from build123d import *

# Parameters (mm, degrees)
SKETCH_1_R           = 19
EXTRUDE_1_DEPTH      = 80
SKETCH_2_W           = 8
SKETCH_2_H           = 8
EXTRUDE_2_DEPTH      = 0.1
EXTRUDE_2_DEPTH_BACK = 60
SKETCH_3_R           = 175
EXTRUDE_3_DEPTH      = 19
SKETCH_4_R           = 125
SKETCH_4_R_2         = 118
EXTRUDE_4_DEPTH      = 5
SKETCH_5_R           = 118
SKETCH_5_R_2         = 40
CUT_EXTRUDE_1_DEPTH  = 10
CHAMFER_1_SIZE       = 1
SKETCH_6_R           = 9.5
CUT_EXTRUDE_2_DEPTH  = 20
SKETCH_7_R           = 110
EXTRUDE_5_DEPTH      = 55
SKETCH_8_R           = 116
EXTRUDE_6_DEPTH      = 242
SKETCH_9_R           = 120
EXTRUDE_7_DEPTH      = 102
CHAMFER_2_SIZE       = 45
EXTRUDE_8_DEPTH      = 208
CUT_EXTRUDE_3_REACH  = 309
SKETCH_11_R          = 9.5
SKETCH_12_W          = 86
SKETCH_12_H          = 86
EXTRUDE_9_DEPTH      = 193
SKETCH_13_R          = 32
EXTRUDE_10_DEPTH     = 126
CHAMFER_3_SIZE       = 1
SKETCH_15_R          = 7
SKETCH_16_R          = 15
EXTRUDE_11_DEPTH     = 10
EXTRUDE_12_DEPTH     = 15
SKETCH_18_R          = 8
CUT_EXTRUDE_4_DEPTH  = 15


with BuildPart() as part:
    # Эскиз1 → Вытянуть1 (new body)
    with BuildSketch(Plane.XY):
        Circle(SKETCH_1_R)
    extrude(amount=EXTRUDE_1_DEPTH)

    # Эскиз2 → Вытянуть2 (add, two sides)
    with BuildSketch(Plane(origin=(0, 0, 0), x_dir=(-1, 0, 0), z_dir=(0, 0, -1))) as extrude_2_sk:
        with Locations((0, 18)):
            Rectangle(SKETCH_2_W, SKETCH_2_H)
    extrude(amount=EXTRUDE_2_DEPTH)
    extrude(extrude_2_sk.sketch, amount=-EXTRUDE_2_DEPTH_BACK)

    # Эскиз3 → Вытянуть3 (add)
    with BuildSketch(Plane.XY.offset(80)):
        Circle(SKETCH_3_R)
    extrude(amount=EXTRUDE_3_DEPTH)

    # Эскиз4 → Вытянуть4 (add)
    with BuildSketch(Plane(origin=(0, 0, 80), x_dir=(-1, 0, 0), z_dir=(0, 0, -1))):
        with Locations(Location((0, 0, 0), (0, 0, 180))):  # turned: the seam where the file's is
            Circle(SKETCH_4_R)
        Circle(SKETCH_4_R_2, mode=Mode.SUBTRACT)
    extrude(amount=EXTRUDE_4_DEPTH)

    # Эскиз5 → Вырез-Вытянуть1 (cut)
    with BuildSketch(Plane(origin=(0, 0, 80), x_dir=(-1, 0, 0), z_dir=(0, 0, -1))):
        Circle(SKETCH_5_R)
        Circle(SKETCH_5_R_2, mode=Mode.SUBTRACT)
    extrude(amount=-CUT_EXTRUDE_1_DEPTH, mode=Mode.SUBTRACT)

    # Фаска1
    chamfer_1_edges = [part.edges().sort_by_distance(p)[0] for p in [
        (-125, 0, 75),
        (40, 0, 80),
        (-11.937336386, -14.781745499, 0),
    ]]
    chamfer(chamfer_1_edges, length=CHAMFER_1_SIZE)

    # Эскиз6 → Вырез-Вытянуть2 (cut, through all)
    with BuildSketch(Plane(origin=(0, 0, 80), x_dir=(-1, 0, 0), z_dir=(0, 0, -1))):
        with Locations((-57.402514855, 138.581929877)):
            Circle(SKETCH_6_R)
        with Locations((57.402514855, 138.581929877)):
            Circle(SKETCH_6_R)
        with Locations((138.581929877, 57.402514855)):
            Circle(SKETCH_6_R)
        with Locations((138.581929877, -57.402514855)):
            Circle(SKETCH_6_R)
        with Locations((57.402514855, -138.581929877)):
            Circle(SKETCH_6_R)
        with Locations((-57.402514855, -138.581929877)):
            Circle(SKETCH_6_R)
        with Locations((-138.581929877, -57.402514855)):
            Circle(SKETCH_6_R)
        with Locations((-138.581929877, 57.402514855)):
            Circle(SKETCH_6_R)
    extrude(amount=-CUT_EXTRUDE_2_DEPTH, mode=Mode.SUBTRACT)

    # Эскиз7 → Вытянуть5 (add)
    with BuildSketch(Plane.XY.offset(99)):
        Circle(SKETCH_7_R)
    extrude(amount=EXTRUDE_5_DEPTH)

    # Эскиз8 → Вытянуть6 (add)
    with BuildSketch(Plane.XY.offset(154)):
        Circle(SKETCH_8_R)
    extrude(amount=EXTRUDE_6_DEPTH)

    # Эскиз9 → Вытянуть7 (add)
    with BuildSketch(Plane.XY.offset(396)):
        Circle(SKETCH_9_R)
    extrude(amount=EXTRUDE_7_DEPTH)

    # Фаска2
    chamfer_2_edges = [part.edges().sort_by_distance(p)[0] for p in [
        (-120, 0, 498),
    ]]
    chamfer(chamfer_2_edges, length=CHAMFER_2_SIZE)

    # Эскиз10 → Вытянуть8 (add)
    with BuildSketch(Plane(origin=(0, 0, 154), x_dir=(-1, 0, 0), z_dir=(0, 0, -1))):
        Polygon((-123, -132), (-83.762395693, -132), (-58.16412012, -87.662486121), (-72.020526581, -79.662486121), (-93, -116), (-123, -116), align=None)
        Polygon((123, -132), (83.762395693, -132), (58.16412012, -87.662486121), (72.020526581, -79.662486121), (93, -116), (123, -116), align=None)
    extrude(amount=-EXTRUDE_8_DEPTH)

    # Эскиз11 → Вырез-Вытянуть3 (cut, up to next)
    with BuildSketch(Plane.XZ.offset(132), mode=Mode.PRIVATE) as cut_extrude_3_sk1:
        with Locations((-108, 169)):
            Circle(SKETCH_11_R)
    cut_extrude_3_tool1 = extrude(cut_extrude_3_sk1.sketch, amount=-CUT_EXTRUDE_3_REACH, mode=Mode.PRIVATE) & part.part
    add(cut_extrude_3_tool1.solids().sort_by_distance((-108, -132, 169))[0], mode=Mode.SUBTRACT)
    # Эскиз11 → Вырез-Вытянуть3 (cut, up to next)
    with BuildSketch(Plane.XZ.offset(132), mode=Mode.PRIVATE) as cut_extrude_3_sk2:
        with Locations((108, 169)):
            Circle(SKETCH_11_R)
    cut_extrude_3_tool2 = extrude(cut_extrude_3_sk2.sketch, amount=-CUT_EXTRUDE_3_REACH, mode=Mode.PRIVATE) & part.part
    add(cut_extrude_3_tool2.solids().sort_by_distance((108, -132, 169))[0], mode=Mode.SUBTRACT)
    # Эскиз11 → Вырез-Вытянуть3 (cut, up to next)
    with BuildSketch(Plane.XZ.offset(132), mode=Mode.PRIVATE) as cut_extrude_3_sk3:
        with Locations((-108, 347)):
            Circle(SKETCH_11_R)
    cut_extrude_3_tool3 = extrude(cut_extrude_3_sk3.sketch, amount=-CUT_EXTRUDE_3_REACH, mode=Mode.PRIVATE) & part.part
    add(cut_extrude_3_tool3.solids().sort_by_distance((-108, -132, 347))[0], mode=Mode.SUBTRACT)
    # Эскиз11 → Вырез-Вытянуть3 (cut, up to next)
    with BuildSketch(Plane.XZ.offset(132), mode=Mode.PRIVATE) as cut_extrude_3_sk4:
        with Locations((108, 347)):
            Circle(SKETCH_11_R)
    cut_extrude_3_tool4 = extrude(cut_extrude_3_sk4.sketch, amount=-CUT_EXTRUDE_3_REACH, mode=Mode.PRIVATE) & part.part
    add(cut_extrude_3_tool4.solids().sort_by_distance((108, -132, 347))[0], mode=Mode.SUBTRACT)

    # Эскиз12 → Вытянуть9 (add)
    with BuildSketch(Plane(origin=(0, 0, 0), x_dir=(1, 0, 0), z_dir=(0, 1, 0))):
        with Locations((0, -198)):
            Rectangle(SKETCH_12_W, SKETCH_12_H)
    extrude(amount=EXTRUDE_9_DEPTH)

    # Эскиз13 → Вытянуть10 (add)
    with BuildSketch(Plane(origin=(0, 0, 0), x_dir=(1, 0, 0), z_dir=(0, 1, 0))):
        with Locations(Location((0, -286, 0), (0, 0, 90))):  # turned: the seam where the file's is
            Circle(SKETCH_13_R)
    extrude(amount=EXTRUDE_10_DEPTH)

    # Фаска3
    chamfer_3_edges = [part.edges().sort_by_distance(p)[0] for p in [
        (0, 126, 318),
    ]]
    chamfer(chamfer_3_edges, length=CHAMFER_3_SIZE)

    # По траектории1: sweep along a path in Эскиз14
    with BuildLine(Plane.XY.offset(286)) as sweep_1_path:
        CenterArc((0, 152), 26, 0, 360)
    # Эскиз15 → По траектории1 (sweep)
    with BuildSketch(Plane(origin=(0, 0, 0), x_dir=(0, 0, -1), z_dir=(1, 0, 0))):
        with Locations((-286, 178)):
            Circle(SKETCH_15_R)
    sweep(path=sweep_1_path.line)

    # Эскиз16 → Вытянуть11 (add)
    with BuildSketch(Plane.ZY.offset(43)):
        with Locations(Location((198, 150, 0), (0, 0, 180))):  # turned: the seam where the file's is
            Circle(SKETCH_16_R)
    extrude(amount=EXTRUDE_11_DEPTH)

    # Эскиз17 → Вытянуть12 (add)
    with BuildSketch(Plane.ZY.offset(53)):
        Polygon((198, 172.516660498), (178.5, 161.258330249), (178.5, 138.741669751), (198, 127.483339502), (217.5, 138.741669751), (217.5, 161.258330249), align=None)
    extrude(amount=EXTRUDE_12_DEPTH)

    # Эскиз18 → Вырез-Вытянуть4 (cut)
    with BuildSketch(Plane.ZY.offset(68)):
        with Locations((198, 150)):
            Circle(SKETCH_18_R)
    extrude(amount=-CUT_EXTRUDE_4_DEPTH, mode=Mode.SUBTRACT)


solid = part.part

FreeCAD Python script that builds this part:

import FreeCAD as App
import Part
import Sketcher
Q = App.Units.Quantity


def edges_at(feature, points):
    """Names of the edges that pass closest to the given points."""
    edges = feature.Shape.Edges
    near = lambda p: min(range(len(edges)), key=lambda i: edges[i].distToShape(Part.Vertex(*p))[0])
    return sorted({f"Edge{near(p) + 1}" for p in points})

doc = App.newDocument("Part")
body = doc.addObject("PartDesign::Body", "Body")

# Sketch on XY plane
sketch1 = doc.addObject("Sketcher::SketchObject", "Sketch")
body.addObject(sketch1)
sketch1.AttachmentSupport = (doc.XY_Plane, [""])
sketch1.MapMode = "FlatFace"
sketch1.addGeometry(Part.Circle(App.Vector(0, 0, 0), App.Vector(0, 0, 1), 19), False)
sketch1.addConstraint([
    Sketcher.Constraint("Coincident", 0, 3, -1, 1),
    Sketcher.Constraint("Diameter", 0, 38.0),
])
pad1 = doc.addObject("PartDesign::Pad", "Pad")
body.addObject(pad1)
pad1.Profile = sketch1
pad1.Length = 80

# Sketch on XY plane
sketch2 = doc.addObject("Sketcher::SketchObject", "Sketch001")
body.addObject(sketch2)
sketch2.AttachmentSupport = (doc.XY_Plane, [""])
sketch2.MapMode = "FlatFace"
sketch2.addGeometry([
    Part.LineSegment(App.Vector(4, 22, 0), App.Vector(4, 14, 0)),
    Part.LineSegment(App.Vector(4, 14, 0), App.Vector(-4, 14, 0)),
    Part.LineSegment(App.Vector(-4, 14, 0), App.Vector(-4, 22, 0)),
    Part.LineSegment(App.Vector(-4, 22, 0), App.Vector(4, 22, 0)),
], False)
sketch2.addConstraint([
    Sketcher.Constraint("Coincident", 0, 2, 1, 1),
    Sketcher.Constraint("Coincident", 1, 2, 2, 1),
    Sketcher.Constraint("Coincident", 2, 2, 3, 1),
    Sketcher.Constraint("Coincident", 3, 2, 0, 1),
    Sketcher.Constraint("Vertical", 0),
    Sketcher.Constraint("Horizontal", 1),
    Sketcher.Constraint("Vertical", 2),
    Sketcher.Constraint("Horizontal", 3),
    Sketcher.Constraint("Equal", 3, 0),
    Sketcher.Constraint("DistanceX", 1, 2, 1, 1, 8.0),
    Sketcher.Constraint("DistanceX", -1, 1, 0, 2, 4.0),
    Sketcher.Constraint("DistanceY", -1, 1, 0, 2, 14.0),
])
pad2 = doc.addObject("PartDesign::Pad", "Pad001")
body.addObject(pad2)
pad2.Profile = sketch2
pad2.Type = "TwoLengths"
pad2.Length = 0.1
pad2.Length2 = 60
pad2.Reversed = True

# Sketch on XY plane
sketch3 = doc.addObject("Sketcher::SketchObject", "Sketch002")
body.addObject(sketch3)
sketch3.AttachmentSupport = (doc.XY_Plane, [""])
sketch3.MapMode = "FlatFace"
sketch3.AttachmentOffset = App.Placement(App.Vector(0, 0, 80), App.Rotation())
sketch3.addGeometry(Part.Circle(App.Vector(0, 0, 0), App.Vector(0, 0, 1), 175), False)
sketch3.addConstraint([
    Sketcher.Constraint("Coincident", 0, 3, -1, 1),
    Sketcher.Constraint("Diameter", 0, 350.0),
])
pad3 = doc.addObject("PartDesign::Pad", "Pad002")
body.addObject(pad3)
pad3.Profile = sketch3
pad3.Length = 19

# Sketch on XY plane
sketch4 = doc.addObject("Sketcher::SketchObject", "Sketch003")
body.addObject(sketch4)
sketch4.AttachmentSupport = (doc.XY_Plane, [""])
sketch4.MapMode = "FlatFace"
sketch4.AttachmentOffset = App.Placement(App.Vector(0, 0, 80), App.Rotation())
sketch4.addGeometry([
    Part.Circle(App.Vector(0, 0, 0), App.Vector(0, 0, 1), 125),
    Part.Circle(App.Vector(0, 0, 0), App.Vector(0, 0, 1), 118),
], False)
sketch4.addConstraint([
    Sketcher.Constraint("Coincident", 0, 3, -1, 1),
    Sketcher.Constraint("Coincident", 1, 3, -1, 1),
    Sketcher.Constraint("Diameter", 0, 250.0),
    Sketcher.Constraint("Diameter", 1, 236.0),
])
pad4 = doc.addObject("PartDesign::Pad", "Pad003")
body.addObject(pad4)
pad4.Profile = sketch4
pad4.Length = 5
pad4.Reversed = True

# Sketch on XY plane
sketch5 = doc.addObject("Sketcher::SketchObject", "Sketch004")
body.addObject(sketch5)
sketch5.AttachmentSupport = (doc.XY_Plane, [""])
sketch5.MapMode = "FlatFace"
sketch5.AttachmentOffset = App.Placement(App.Vector(0, 0, 80), App.Rotation())
sketch5.addGeometry([
    Part.Circle(App.Vector(0, 0, 0), App.Vector(0, 0, 1), 118),
    Part.Circle(App.Vector(0, 0, 0), App.Vector(0, 0, 1), 40),
], False)
sketch5.addConstraint([
    Sketcher.Constraint("Coincident", 0, 3, -1, 1),
    Sketcher.Constraint("Coincident", 1, 3, -1, 1),
    Sketcher.Constraint("Diameter", 0, 236.0),
    Sketcher.Constraint("Diameter", 1, 80.0),
])
pocket1 = doc.addObject("PartDesign::Pocket", "Pocket")
body.addObject(pocket1)
pocket1.Profile = sketch5
pocket1.Length = 10
pocket1.Reversed = True
doc.recompute()

chamfer = doc.addObject("PartDesign::Chamfer", "Chamfer")
body.addObject(chamfer)
chamfer.Base = (pocket1, edges_at(pocket1, [(-125, 0, 75), (40, 0, 80), (-11.937, -14.782, 0)]))
chamfer.Size = 1

# Sketch on XY plane
sketch6 = doc.addObject("Sketcher::SketchObject", "Sketch005")
body.addObject(sketch6)
sketch6.AttachmentSupport = (doc.XY_Plane, [""])
sketch6.MapMode = "FlatFace"
sketch6.AttachmentOffset = App.Placement(App.Vector(0, 0, 80), App.Rotation())
sketch6.addGeometry([
    Part.Circle(App.Vector(57, 139, 0), App.Vector(0, 0, 1), 10),  # 0
    Part.Circle(App.Vector(-57, 139, 0), App.Vector(0, 0, 1), 10),  # 1
    Part.Circle(App.Vector(-139, 57, 0), App.Vector(0, 0, 1), 10),  # 2
    Part.Circle(App.Vector(-139, -57, 0), App.Vector(0, 0, 1), 10),  # 3
    Part.Circle(App.Vector(-57, -139, 0), App.Vector(0, 0, 1), 10),  # 4
    Part.Circle(App.Vector(57, -139, 0), App.Vector(0, 0, 1), 10),  # 5
    Part.Circle(App.Vector(139, -57, 0), App.Vector(0, 0, 1), 10),  # 6
    Part.Circle(App.Vector(139, 57, 0), App.Vector(0, 0, 1), 10),  # 7
], False)
sketch6.addConstraint([
    Sketcher.Constraint("Equal", 0, 1),
    Sketcher.Constraint("Equal", 1, 2),
    Sketcher.Constraint("Equal", 2, 3),
    Sketcher.Constraint("Equal", 3, 4),
    Sketcher.Constraint("Equal", 4, 5),
    Sketcher.Constraint("Equal", 5, 6),
    Sketcher.Constraint("Equal", 6, 7),
    Sketcher.Constraint("Symmetric", 0, 3, 4, 3, -1, 1),
    Sketcher.Constraint("Symmetric", 1, 3, 5, 3, -1, 1),
    Sketcher.Constraint("Symmetric", 2, 3, 6, 3, -1, 1),
    Sketcher.Constraint("Symmetric", 3, 3, 7, 3, -1, 1),
    Sketcher.Constraint("Symmetric", 0, 3, 1, 3, -2),
    Sketcher.Constraint("Symmetric", 3, 3, 6, 3, -2),
    Sketcher.Constraint("Diameter", 0, 19.0),
    Sketcher.Constraint("DistanceY", -1, 1, 0, 3, 138.58193),
    Sketcher.Constraint("DistanceX", 2, 3, -1, 1, 138.58193),
    Sketcher.Constraint("DistanceX", 1, 3, 0, 3, 114.80503),
    Sketcher.Constraint("DistanceY", 3, 3, 2, 3, 114.80503),
])
pocket2 = doc.addObject("PartDesign::Pocket", "Pocket001")
body.addObject(pocket2)
pocket2.Profile = sketch6
pocket2.Type = "ThroughAll"
pocket2.Reversed = True

# Sketch on XY plane
sketch7 = doc.addObject("Sketcher::SketchObject", "Sketch006")
body.addObject(sketch7)
sketch7.AttachmentSupport = (doc.XY_Plane, [""])
sketch7.MapMode = "FlatFace"
sketch7.AttachmentOffset = App.Placement(App.Vector(0, 0, 99), App.Rotation())
sketch7.addGeometry(Part.Circle(App.Vector(0, 0, 0), App.Vector(0, 0, 1), 110), False)
sketch7.addConstraint([
    Sketcher.Constraint("Coincident", 0, 3, -1, 1),
    Sketcher.Constraint("Diameter", 0, 220.0),
])
pad5 = doc.addObject("PartDesign::Pad", "Pad004")
body.addObject(pad5)
pad5.Profile = sketch7
pad5.Length = 55

# Sketch on XY plane
sketch8 = doc.addObject("Sketcher::SketchObject", "Sketch007")
body.addObject(sketch8)
sketch8.AttachmentSupport = (doc.XY_Plane, [""])
sketch8.MapMode = "FlatFace"
sketch8.AttachmentOffset = App.Placement(App.Vector(0, 0, 154), App.Rotation())
sketch8.addGeometry(Part.Circle(App.Vector(0, 0, 0), App.Vector(0, 0, 1), 116), False)
sketch8.addConstraint([
    Sketcher.Constraint("Coincident", 0, 3, -1, 1),
    Sketcher.Constraint("Diameter", 0, 232.0),
])
pad6 = doc.addObject("PartDesign::Pad", "Pad005")
body.addObject(pad6)
pad6.Profile = sketch8
pad6.Length = 242

# Sketch on XY plane
sketch9 = doc.addObject("Sketcher::SketchObject", "Sketch008")
body.addObject(sketch9)
sketch9.AttachmentSupport = (doc.XY_Plane, [""])
sketch9.MapMode = "FlatFace"
sketch9.AttachmentOffset = App.Placement(App.Vector(0, 0, 396), App.Rotation())
sketch9.addGeometry(Part.Circle(App.Vector(0, 0, 0), App.Vector(0, 0, 1), 120), False)
sketch9.addConstraint([
    Sketcher.Constraint("Coincident", 0, 3, -1, 1),
    Sketcher.Constraint("Diameter", 0, 240.0),
])
pad7 = doc.addObject("PartDesign::Pad", "Pad006")
body.addObject(pad7)
pad7.Profile = sketch9
pad7.Length = 102
doc.recompute()

chamfer2 = doc.addObject("PartDesign::Chamfer", "Chamfer001")
body.addObject(chamfer2)
chamfer2.Base = (pad7, edges_at(pad7, [(-120, 0, 498)]))
chamfer2.Size = 45

# Sketch on XY plane
sketch10 = doc.addObject("Sketcher::SketchObject", "Sketch009")
body.addObject(sketch10)
sketch10.AttachmentSupport = (doc.XY_Plane, [""])
sketch10.MapMode = "FlatFace"
sketch10.AttachmentOffset = App.Placement(App.Vector(0, 0, 154), App.Rotation())
sketch10.addGeometry([
    Part.LineSegment(App.Vector(123, -132, 0), App.Vector(84, -132, 0)),  # 0
    Part.LineSegment(App.Vector(84, -132, 0), App.Vector(58, -88, 0)),  # 1
    Part.LineSegment(App.Vector(58, -88, 0), App.Vector(72, -80, 0)),  # 2
    Part.LineSegment(App.Vector(72, -80, 0), App.Vector(93, -116, 0)),  # 3
    Part.LineSegment(App.Vector(93, -116, 0), App.Vector(123, -116, 0)),  # 4
    Part.LineSegment(App.Vector(123, -116, 0), App.Vector(123, -132, 0)),  # 5
    Part.LineSegment(App.Vector(-84, -132, 0), App.Vector(-123, -132, 0)),  # 6
    Part.LineSegment(App.Vector(-123, -132, 0), App.Vector(-123, -116, 0)),  # 7
    Part.LineSegment(App.Vector(-123, -116, 0), App.Vector(-93, -116, 0)),  # 8
    Part.LineSegment(App.Vector(-93, -116, 0), App.Vector(-72, -80, 0)),  # 9
    Part.LineSegment(App.Vector(-72, -80, 0), App.Vector(-58, -88, 0)),  # 10
    Part.LineSegment(App.Vector(-58, -88, 0), App.Vector(-84, -132, 0)),  # 11
], False)
sketch10.addConstraint([
    Sketcher.Constraint("Coincident", 0, 2, 1, 1),
    Sketcher.Constraint("Coincident", 1, 2, 2, 1),
    Sketcher.Constraint("Coincident", 2, 2, 3, 1),
    Sketcher.Constraint("Coincident", 3, 2, 4, 1),
    Sketcher.Constraint("Coincident", 4, 2, 5, 1),
    Sketcher.Constraint("Coincident", 5, 2, 0, 1),
    Sketcher.Constraint("Coincident", 6, 2, 7, 1),
    Sketcher.Constraint("Coincident", 7, 2, 8, 1),
    Sketcher.Constraint("Coincident", 8, 2, 9, 1),
    Sketcher.Constraint("Coincident", 9, 2, 10, 1),
    Sketcher.Constraint("Coincident", 10, 2, 11, 1),
    Sketcher.Constraint("Coincident", 11, 2, 6, 1),
    Sketcher.Constraint("Horizontal", 0),
    Sketcher.Constraint("Horizontal", 4),
    Sketcher.Constraint("Vertical", 5),
    Sketcher.Constraint("Horizontal", 6),
    Sketcher.Constraint("Vertical", 7),
    Sketcher.Constraint("Horizontal", 8),
    Sketcher.Constraint("Symmetric", 5, 2, 6, 2, -2),
    Sketcher.Constraint("Symmetric", 3, 2, 8, 2, -2),
    Sketcher.Constraint("Symmetric", 2, 2, 9, 2, -2),
    Sketcher.Constraint("Symmetric", 1, 2, 10, 2, -2),
    Sketcher.Constraint("Perpendicular", 1, 2),
    Sketcher.Constraint("Perpendicular", 2, 3),
    Sketcher.Constraint("Perpendicular", 10, 11),
    Sketcher.Constraint("DistanceX", 4, 1, 4, 2, 30.0),
    Sketcher.Constraint("DistanceY", 5, 2, 5, 1, 16.0),
    Sketcher.Constraint("Angle", 1, Q("120 deg")),
    Sketcher.Constraint("Distance", 2, 16.0),
    Sketcher.Constraint("DistanceY", 0, 2, -1, 1, 132.0),
    Sketcher.Constraint("DistanceX", -1, 1, 3, 2, 93.0),
    Sketcher.Constraint("Distance", 1, 51.196551),
])
pad8 = doc.addObject("PartDesign::Pad", "Pad007")
body.addObject(pad8)
pad8.Profile = sketch10
pad8.Length = 208

# Sketch on XZ plane
sketch11 = doc.addObject("Sketcher::SketchObject", "Sketch010")
body.addObject(sketch11)
sketch11.AttachmentSupport = (doc.XZ_Plane, [""])
sketch11.MapMode = "FlatFace"
sketch11.AttachmentOffset = App.Placement(App.Vector(0, 0, 132), App.Rotation())
sketch11.addGeometry(Part.Circle(App.Vector(-108, 169, 0), App.Vector(0, 0, 1), 10), False)
sketch11.addConstraint([
    Sketcher.Constraint("Diameter", 0, 19.0),
    Sketcher.Constraint("DistanceX", 0, 3, -1, 1, 108.0),
    Sketcher.Constraint("DistanceY", -1, 1, 0, 3, 169.0),
])
pocket3 = doc.addObject("PartDesign::Pocket", "Pocket002")
body.addObject(pocket3)
pocket3.Profile = sketch11
pocket3.Type = "UpToFirst"

# Sketch on XZ plane
sketch12 = doc.addObject("Sketcher::SketchObject", "Sketch011")
body.addObject(sketch12)
sketch12.AttachmentSupport = (doc.XZ_Plane, [""])
sketch12.MapMode = "FlatFace"
sketch12.AttachmentOffset = App.Placement(App.Vector(0, 0, 132), App.Rotation())
sketch12.addGeometry(Part.Circle(App.Vector(108, 169, 0), App.Vector(0, 0, 1), 10), False)
sketch12.addConstraint([
    Sketcher.Constraint("Diameter", 0, 19.0),
    Sketcher.Constraint("DistanceX", -1, 1, 0, 3, 108.0),
    Sketcher.Constraint("DistanceY", -1, 1, 0, 3, 169.0),
])
pocket4 = doc.addObject("PartDesign::Pocket", "Pocket003")
body.addObject(pocket4)
pocket4.Profile = sketch12
pocket4.Type = "UpToFirst"

# Sketch on XZ plane
sketch13 = doc.addObject("Sketcher::SketchObject", "Sketch012")
body.addObject(sketch13)
sketch13.AttachmentSupport = (doc.XZ_Plane, [""])
sketch13.MapMode = "FlatFace"
sketch13.AttachmentOffset = App.Placement(App.Vector(0, 0, 132), App.Rotation())
sketch13.addGeometry(Part.Circle(App.Vector(-108, 347, 0), App.Vector(0, 0, 1), 10), False)
sketch13.addConstraint([
    Sketcher.Constraint("Diameter", 0, 19.0),
    Sketcher.Constraint("DistanceX", 0, 3, -1, 1, 108.0),
    Sketcher.Constraint("DistanceY", -1, 1, 0, 3, 347.0),
])
pocket5 = doc.addObject("PartDesign::Pocket", "Pocket004")
body.addObject(pocket5)
pocket5.Profile = sketch13
pocket5.Type = "UpToFirst"

# Sketch on XZ plane
sketch14 = doc.addObject("Sketcher::SketchObject", "Sketch013")
body.addObject(sketch14)
sketch14.AttachmentSupport = (doc.XZ_Plane, [""])
sketch14.MapMode = "FlatFace"
sketch14.AttachmentOffset = App.Placement(App.Vector(0, 0, 132), App.Rotation())
sketch14.addGeometry(Part.Circle(App.Vector(108, 347, 0), App.Vector(0, 0, 1), 10), False)
sketch14.addConstraint([
    Sketcher.Constraint("Diameter", 0, 19.0),
    Sketcher.Constraint("DistanceX", -1, 1, 0, 3, 108.0),
    Sketcher.Constraint("DistanceY", -1, 1, 0, 3, 347.0),
])
pocket6 = doc.addObject("PartDesign::Pocket", "Pocket005")
body.addObject(pocket6)
pocket6.Profile = sketch14
pocket6.Type = "UpToFirst"

# Sketch on XZ plane
sketch15 = doc.addObject("Sketcher::SketchObject", "Sketch014")
body.addObject(sketch15)
sketch15.AttachmentSupport = (doc.XZ_Plane, [""])
sketch15.MapMode = "FlatFace"
sketch15.addGeometry([
    Part.LineSegment(App.Vector(-43, 155, 0), App.Vector(-43, 241, 0)),
    Part.LineSegment(App.Vector(-43, 241, 0), App.Vector(43, 241, 0)),
    Part.LineSegment(App.Vector(43, 241, 0), App.Vector(43, 155, 0)),
    Part.LineSegment(App.Vector(43, 155, 0), App.Vector(-43, 155, 0)),
], False)
sketch15.addConstraint([
    Sketcher.Constraint("Coincident", 0, 2, 1, 1),
    Sketcher.Constraint("Coincident", 1, 2, 2, 1),
    Sketcher.Constraint("Coincident", 2, 2, 3, 1),
    Sketcher.Constraint("Coincident", 3, 2, 0, 1),
    Sketcher.Constraint("Vertical", 0),
    Sketcher.Constraint("Horizontal", 1),
    Sketcher.Constraint("Vertical", 2),
    Sketcher.Constraint("Horizontal", 3),
    Sketcher.Constraint("Equal", 3, 0),
    Sketcher.Constraint("DistanceX", 1, 1, 1, 2, 86.0),
    Sketcher.Constraint("DistanceX", 0, 2, -1, 1, 43.0),
    Sketcher.Constraint("DistanceY", -1, 1, 0, 2, 241.0),
])
pad9 = doc.addObject("PartDesign::Pad", "Pad008")
body.addObject(pad9)
pad9.Profile = sketch15
pad9.Length = 193
pad9.Reversed = True

# Sketch on XZ plane
sketch16 = doc.addObject("Sketcher::SketchObject", "Sketch015")
body.addObject(sketch16)
sketch16.AttachmentSupport = (doc.XZ_Plane, [""])
sketch16.MapMode = "FlatFace"
sketch16.addGeometry(Part.Circle(App.Vector(0, 286, 0), App.Vector(0, 0, 1), 32), False)
sketch16.addConstraint([
    Sketcher.Constraint("PointOnObject", 0, 3, -2),
    Sketcher.Constraint("Diameter", 0, 64.0),
    Sketcher.Constraint("DistanceY", -1, 1, 0, 3, 286.0),
])
pad10 = doc.addObject("PartDesign::Pad", "Pad009")
body.addObject(pad10)
pad10.Profile = sketch16
pad10.Length = 126
pad10.Reversed = True
doc.recompute()

chamfer3 = doc.addObject("PartDesign::Chamfer", "Chamfer002")
body.addObject(chamfer3)
chamfer3.Base = (pad10, edges_at(pad10, [(0, 126, 318)]))
chamfer3.Size = 1

# Sketch on YZ plane
sketch17 = doc.addObject("Sketcher::SketchObject", "Sketch016")
body.addObject(sketch17)
sketch17.AttachmentSupport = (doc.YZ_Plane, [""])
sketch17.MapMode = "FlatFace"
sketch17.addGeometry(Part.Circle(App.Vector(178, 286, 0), App.Vector(0, 0, 1), 7), False)
sketch17.addConstraint([
    Sketcher.Constraint("Diameter", 0, 14.0),
    Sketcher.Constraint("DistanceX", -1, 1, 0, 3, 178.0),
    Sketcher.Constraint("DistanceY", -1, 1, 0, 3, 286.0),
])

# Sketch on XY plane
sketch18 = doc.addObject("Sketcher::SketchObject", "Sketch017")
body.addObject(sketch18)
sketch18.AttachmentSupport = (doc.XY_Plane, [""])
sketch18.MapMode = "FlatFace"
sketch18.AttachmentOffset = App.Placement(App.Vector(0, 0, 286), App.Rotation())
sketch18.addGeometry(Part.Circle(App.Vector(0, 152, 0), App.Vector(0, 0, 1), 26), False)
sketch18.addConstraint([
    Sketcher.Constraint("PointOnObject", 0, 3, -2),
    Sketcher.Constraint("Diameter", 0, 52.0),
    Sketcher.Constraint("DistanceY", -1, 1, 0, 3, 152.0),
])
doc.recompute()

additivepipe = doc.addObject("PartDesign::AdditivePipe", "AdditivePipe")
body.addObject(additivepipe)
additivepipe.Profile = sketch17
additivepipe.Spine = (sketch18, ["Edge1"])

# Sketch on YZ plane
sketch19 = doc.addObject("Sketcher::SketchObject", "Sketch018")
body.addObject(sketch19)
sketch19.AttachmentSupport = (doc.YZ_Plane, [""])
sketch19.MapMode = "FlatFace"
sketch19.AttachmentOffset = App.Placement(App.Vector(0, 0, -43), App.Rotation())
sketch19.addGeometry(Part.Circle(App.Vector(150, 198, 0), App.Vector(0, 0, 1), 15), False)
sketch19.addConstraint([
    Sketcher.Constraint("Diameter", 0, 30.0),
    Sketcher.Constraint("DistanceX", -1, 1, 0, 3, 150.0),
    Sketcher.Constraint("DistanceY", -1, 1, 0, 3, 198.0),
])
pad11 = doc.addObject("PartDesign::Pad", "Pad010")
body.addObject(pad11)
pad11.Profile = sketch19
pad11.Length = 10
pad11.Reversed = True

# Sketch on YZ plane
sketch20 = doc.addObject("Sketcher::SketchObject", "Sketch019")
body.addObject(sketch20)
sketch20.AttachmentSupport = (doc.YZ_Plane, [""])
sketch20.MapMode = "FlatFace"
sketch20.AttachmentOffset = App.Placement(App.Vector(0, 0, -53), App.Rotation())
sketch20.addGeometry([
    Part.LineSegment(App.Vector(173, 198, 0), App.Vector(161, 178, 0)),  # 0
    Part.LineSegment(App.Vector(161, 178, 0), App.Vector(139, 178, 0)),  # 1
    Part.LineSegment(App.Vector(139, 178, 0), App.Vector(127, 198, 0)),  # 2
    Part.LineSegment(App.Vector(127, 198, 0), App.Vector(139, 218, 0)),  # 3
    Part.LineSegment(App.Vector(139, 218, 0), App.Vector(161, 218, 0)),  # 4
    Part.LineSegment(App.Vector(161, 218, 0), App.Vector(173, 198, 0)),  # 5
], False)
sketch20.addConstraint([
    Sketcher.Constraint("Coincident", 0, 2, 1, 1),
    Sketcher.Constraint("Coincident", 1, 2, 2, 1),
    Sketcher.Constraint("Coincident", 2, 2, 3, 1),
    Sketcher.Constraint("Coincident", 3, 2, 4, 1),
    Sketcher.Constraint("Coincident", 4, 2, 5, 1),
    Sketcher.Constraint("Coincident", 5, 2, 0, 1),
    Sketcher.Constraint("Horizontal", 1),
    Sketcher.Constraint("Horizontal", 4),
    Sketcher.Constraint("Parallel", 0, 3),
    Sketcher.Constraint("Parallel", 2, 5),
    Sketcher.Constraint("Horizontal", 2, 2, 5, 2),
    Sketcher.Constraint("Vertical", 1, 2, 3, 2),
    Sketcher.Constraint("Vertical", 0, 2, 4, 2),
    Sketcher.Constraint("Angle", 0, Q("-120 deg")),
    Sketcher.Constraint("DistanceY", -1, 1, 2, 2, 198.0),
    Sketcher.Constraint("DistanceY", 1, 2, 3, 2, 39.0),
    Sketcher.Constraint("DistanceX", 1, 2, 1, 1, 22.51666),
    Sketcher.Constraint("DistanceX", -1, 1, 0, 2, 161.25833),
])
pad12 = doc.addObject("PartDesign::Pad", "Pad011")
body.addObject(pad12)
pad12.Profile = sketch20
pad12.Length = 15
pad12.Reversed = True

# Sketch on YZ plane
sketch21 = doc.addObject("Sketcher::SketchObject", "Sketch020")
body.addObject(sketch21)
sketch21.AttachmentSupport = (doc.YZ_Plane, [""])
sketch21.MapMode = "FlatFace"
sketch21.AttachmentOffset = App.Placement(App.Vector(0, 0, -68), App.Rotation())
sketch21.addGeometry(Part.Circle(App.Vector(150, 198, 0), App.Vector(0, 0, 1), 8), False)
sketch21.addConstraint([
    Sketcher.Constraint("Diameter", 0, 16.0),
    Sketcher.Constraint("DistanceX", -1, 1, 0, 3, 150.0),
    Sketcher.Constraint("DistanceY", -1, 1, 0, 3, 198.0),
])
pocket7 = doc.addObject("PartDesign::Pocket", "Pocket006")
body.addObject(pocket7)
pocket7.Profile = sketch21
pocket7.Length = 15
pocket7.Reversed = True

doc.recompute()
